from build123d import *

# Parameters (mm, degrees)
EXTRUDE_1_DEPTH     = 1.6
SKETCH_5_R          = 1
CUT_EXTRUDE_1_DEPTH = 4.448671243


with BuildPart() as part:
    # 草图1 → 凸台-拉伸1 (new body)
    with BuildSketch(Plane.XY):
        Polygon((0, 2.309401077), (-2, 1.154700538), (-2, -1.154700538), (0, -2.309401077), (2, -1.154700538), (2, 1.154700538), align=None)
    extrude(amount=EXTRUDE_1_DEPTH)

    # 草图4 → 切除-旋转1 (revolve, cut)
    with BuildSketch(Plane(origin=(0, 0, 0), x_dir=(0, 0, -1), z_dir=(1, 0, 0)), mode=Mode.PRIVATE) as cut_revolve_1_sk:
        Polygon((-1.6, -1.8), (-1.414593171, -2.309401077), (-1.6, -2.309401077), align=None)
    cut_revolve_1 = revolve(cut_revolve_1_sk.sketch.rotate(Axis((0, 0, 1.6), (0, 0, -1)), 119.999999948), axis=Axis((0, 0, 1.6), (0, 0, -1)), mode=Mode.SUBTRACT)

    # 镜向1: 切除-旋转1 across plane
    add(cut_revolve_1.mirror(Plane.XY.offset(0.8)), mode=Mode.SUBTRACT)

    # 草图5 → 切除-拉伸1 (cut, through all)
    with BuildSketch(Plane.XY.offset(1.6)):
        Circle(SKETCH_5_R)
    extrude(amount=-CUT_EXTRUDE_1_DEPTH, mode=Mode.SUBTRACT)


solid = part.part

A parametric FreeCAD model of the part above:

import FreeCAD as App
import Part
import Sketcher

V = App.Vector
Q = App.Units.Quantity


def add_polygon(sketch, points):
    """Adds a closed chain of lines whose ends are joined by coincident constraints."""
    first, n = sketch.GeometryCount, len(points)
    for a, b in zip(points, points[1:] + points[:1]):
        sketch.addGeometry(Part.LineSegment(App.Vector(*a, 0), App.Vector(*b, 0)), False)
    for i in range(n):
        sketch.addConstraint(Sketcher.Constraint("Coincident", first + i, 2, first + (i + 1) % n, 1))

doc = App.newDocument("Part")
body = doc.addObject("PartDesign::Body", "Body")

sketch1 = body.newObject("Sketcher::SketchObject", "Sketch")
sketch1.AttachmentSupport = (doc.getObject("XY_Plane"), [""])
sketch1.MapMode = "FlatFace"
add_polygon(sketch1, [(0, 2.3), (-2, 1.2), (-2, -1.2), (0, -2.3), (2, -1.2), (2, 1.2)])
sketch1.addConstraint(Sketcher.Constraint("Vertical", 1))
sketch1.addConstraint(Sketcher.Constraint("Vertical", 4))
sketch1.addConstraint(Sketcher.Constraint("Symmetric", 0, 2, 3, 2, -1, 1))
sketch1.addConstraint(Sketcher.Constraint("Symmetric", 2, 2, 5, 2, -1, 1))
sketch1.addConstraint(Sketcher.Constraint("PointOnObject", 2, 2, -2))
sketch1.addConstraint(Sketcher.Constraint("Parallel", 2, 5))
sketch1.addConstraint(Sketcher.Constraint("Horizontal", 1, 2, 3, 2))
sketch1.addConstraint(Sketcher.Constraint("Angle", 0, Q("-150 deg")))
sketch1.addConstraint(Sketcher.Constraint("DistanceX", 0, 2, -1, 1, 2.0))
sketch1.addConstraint(Sketcher.Constraint("DistanceY", 1, 2, 1, 1, 2.309401))
pad1 = body.newObject("PartDesign::Pad", "Pad")
pad1.Profile = sketch1
pad1.Length = 1.6

sketch2 = body.newObject("Sketcher::SketchObject", "Sketch001")
sketch2.AttachmentSupport = (doc.getObject("YZ_Plane"), [""])
sketch2.MapMode = "FlatFace"
add_polygon(sketch2, [(-2.31, 1.41), (-1.8, 1.6), (-2.31, 1.6)])
sketch2.addConstraint(Sketcher.Constraint("Horizontal", 1))
sketch2.addConstraint(Sketcher.Constraint("Vertical", 2))
sketch2.addConstraint(Sketcher.Constraint("Angle", 0, Q("20 deg")))
sketch2.addConstraint(Sketcher.Constraint("DistanceX", 0, 2, -1, 1, 1.8))
sketch2.addConstraint(Sketcher.Constraint("DistanceY", -1, 1, 0, 2, 1.6))
sketch2.addConstraint(Sketcher.Constraint("DistanceX", 1, 2, 1, 1, 0.509401))
groove = body.newObject("PartDesign::Groove", "Groove")
groove.Profile = sketch2
groove.ReferenceAxis = (sketch2, ["V_Axis"])
groove.Angle = 360
doc.recompute()

datumplane = body.newObject("PartDesign::Plane", "DatumPlane")
datumplane.AttachmentSupport = (doc.getObject("XY_Plane"), [""])
datumplane.MapMode = "FlatFace"
datumplane.AttachmentOffset = App.Placement(V(0, 0, 0.8), App.Rotation())
mirrored = body.newObject("PartDesign::Mirrored", "Mirrored")
mirrored.Originals = [groove]
mirrored.MirrorPlane = (datumplane, [""])
body.Tip = mirrored

sketch3 = body.newObject("Sketcher::SketchObject", "Sketch002")
sketch3.AttachmentSupport = (doc.getObject("XY_Plane"), [""])
sketch3.MapMode = "FlatFace"
sketch3.AttachmentOffset = App.Placement(V(0, 0, 1.6), App.Rotation())
sketch3.addGeometry(Part.Circle(V(0, 0, 0), V(0, 0, 1), 1), False)
sketch3.addConstraint(Sketcher.Constraint("Coincident", 0, 3, -1, 1))
sketch3.addConstraint(Sketcher.Constraint("Diameter", 0, 2.0))
pocket1 = body.newObject("PartDesign::Pocket", "Pocket")
pocket1.Profile = sketch3
pocket1.Type = "ThroughAll"

doc.recompute()
